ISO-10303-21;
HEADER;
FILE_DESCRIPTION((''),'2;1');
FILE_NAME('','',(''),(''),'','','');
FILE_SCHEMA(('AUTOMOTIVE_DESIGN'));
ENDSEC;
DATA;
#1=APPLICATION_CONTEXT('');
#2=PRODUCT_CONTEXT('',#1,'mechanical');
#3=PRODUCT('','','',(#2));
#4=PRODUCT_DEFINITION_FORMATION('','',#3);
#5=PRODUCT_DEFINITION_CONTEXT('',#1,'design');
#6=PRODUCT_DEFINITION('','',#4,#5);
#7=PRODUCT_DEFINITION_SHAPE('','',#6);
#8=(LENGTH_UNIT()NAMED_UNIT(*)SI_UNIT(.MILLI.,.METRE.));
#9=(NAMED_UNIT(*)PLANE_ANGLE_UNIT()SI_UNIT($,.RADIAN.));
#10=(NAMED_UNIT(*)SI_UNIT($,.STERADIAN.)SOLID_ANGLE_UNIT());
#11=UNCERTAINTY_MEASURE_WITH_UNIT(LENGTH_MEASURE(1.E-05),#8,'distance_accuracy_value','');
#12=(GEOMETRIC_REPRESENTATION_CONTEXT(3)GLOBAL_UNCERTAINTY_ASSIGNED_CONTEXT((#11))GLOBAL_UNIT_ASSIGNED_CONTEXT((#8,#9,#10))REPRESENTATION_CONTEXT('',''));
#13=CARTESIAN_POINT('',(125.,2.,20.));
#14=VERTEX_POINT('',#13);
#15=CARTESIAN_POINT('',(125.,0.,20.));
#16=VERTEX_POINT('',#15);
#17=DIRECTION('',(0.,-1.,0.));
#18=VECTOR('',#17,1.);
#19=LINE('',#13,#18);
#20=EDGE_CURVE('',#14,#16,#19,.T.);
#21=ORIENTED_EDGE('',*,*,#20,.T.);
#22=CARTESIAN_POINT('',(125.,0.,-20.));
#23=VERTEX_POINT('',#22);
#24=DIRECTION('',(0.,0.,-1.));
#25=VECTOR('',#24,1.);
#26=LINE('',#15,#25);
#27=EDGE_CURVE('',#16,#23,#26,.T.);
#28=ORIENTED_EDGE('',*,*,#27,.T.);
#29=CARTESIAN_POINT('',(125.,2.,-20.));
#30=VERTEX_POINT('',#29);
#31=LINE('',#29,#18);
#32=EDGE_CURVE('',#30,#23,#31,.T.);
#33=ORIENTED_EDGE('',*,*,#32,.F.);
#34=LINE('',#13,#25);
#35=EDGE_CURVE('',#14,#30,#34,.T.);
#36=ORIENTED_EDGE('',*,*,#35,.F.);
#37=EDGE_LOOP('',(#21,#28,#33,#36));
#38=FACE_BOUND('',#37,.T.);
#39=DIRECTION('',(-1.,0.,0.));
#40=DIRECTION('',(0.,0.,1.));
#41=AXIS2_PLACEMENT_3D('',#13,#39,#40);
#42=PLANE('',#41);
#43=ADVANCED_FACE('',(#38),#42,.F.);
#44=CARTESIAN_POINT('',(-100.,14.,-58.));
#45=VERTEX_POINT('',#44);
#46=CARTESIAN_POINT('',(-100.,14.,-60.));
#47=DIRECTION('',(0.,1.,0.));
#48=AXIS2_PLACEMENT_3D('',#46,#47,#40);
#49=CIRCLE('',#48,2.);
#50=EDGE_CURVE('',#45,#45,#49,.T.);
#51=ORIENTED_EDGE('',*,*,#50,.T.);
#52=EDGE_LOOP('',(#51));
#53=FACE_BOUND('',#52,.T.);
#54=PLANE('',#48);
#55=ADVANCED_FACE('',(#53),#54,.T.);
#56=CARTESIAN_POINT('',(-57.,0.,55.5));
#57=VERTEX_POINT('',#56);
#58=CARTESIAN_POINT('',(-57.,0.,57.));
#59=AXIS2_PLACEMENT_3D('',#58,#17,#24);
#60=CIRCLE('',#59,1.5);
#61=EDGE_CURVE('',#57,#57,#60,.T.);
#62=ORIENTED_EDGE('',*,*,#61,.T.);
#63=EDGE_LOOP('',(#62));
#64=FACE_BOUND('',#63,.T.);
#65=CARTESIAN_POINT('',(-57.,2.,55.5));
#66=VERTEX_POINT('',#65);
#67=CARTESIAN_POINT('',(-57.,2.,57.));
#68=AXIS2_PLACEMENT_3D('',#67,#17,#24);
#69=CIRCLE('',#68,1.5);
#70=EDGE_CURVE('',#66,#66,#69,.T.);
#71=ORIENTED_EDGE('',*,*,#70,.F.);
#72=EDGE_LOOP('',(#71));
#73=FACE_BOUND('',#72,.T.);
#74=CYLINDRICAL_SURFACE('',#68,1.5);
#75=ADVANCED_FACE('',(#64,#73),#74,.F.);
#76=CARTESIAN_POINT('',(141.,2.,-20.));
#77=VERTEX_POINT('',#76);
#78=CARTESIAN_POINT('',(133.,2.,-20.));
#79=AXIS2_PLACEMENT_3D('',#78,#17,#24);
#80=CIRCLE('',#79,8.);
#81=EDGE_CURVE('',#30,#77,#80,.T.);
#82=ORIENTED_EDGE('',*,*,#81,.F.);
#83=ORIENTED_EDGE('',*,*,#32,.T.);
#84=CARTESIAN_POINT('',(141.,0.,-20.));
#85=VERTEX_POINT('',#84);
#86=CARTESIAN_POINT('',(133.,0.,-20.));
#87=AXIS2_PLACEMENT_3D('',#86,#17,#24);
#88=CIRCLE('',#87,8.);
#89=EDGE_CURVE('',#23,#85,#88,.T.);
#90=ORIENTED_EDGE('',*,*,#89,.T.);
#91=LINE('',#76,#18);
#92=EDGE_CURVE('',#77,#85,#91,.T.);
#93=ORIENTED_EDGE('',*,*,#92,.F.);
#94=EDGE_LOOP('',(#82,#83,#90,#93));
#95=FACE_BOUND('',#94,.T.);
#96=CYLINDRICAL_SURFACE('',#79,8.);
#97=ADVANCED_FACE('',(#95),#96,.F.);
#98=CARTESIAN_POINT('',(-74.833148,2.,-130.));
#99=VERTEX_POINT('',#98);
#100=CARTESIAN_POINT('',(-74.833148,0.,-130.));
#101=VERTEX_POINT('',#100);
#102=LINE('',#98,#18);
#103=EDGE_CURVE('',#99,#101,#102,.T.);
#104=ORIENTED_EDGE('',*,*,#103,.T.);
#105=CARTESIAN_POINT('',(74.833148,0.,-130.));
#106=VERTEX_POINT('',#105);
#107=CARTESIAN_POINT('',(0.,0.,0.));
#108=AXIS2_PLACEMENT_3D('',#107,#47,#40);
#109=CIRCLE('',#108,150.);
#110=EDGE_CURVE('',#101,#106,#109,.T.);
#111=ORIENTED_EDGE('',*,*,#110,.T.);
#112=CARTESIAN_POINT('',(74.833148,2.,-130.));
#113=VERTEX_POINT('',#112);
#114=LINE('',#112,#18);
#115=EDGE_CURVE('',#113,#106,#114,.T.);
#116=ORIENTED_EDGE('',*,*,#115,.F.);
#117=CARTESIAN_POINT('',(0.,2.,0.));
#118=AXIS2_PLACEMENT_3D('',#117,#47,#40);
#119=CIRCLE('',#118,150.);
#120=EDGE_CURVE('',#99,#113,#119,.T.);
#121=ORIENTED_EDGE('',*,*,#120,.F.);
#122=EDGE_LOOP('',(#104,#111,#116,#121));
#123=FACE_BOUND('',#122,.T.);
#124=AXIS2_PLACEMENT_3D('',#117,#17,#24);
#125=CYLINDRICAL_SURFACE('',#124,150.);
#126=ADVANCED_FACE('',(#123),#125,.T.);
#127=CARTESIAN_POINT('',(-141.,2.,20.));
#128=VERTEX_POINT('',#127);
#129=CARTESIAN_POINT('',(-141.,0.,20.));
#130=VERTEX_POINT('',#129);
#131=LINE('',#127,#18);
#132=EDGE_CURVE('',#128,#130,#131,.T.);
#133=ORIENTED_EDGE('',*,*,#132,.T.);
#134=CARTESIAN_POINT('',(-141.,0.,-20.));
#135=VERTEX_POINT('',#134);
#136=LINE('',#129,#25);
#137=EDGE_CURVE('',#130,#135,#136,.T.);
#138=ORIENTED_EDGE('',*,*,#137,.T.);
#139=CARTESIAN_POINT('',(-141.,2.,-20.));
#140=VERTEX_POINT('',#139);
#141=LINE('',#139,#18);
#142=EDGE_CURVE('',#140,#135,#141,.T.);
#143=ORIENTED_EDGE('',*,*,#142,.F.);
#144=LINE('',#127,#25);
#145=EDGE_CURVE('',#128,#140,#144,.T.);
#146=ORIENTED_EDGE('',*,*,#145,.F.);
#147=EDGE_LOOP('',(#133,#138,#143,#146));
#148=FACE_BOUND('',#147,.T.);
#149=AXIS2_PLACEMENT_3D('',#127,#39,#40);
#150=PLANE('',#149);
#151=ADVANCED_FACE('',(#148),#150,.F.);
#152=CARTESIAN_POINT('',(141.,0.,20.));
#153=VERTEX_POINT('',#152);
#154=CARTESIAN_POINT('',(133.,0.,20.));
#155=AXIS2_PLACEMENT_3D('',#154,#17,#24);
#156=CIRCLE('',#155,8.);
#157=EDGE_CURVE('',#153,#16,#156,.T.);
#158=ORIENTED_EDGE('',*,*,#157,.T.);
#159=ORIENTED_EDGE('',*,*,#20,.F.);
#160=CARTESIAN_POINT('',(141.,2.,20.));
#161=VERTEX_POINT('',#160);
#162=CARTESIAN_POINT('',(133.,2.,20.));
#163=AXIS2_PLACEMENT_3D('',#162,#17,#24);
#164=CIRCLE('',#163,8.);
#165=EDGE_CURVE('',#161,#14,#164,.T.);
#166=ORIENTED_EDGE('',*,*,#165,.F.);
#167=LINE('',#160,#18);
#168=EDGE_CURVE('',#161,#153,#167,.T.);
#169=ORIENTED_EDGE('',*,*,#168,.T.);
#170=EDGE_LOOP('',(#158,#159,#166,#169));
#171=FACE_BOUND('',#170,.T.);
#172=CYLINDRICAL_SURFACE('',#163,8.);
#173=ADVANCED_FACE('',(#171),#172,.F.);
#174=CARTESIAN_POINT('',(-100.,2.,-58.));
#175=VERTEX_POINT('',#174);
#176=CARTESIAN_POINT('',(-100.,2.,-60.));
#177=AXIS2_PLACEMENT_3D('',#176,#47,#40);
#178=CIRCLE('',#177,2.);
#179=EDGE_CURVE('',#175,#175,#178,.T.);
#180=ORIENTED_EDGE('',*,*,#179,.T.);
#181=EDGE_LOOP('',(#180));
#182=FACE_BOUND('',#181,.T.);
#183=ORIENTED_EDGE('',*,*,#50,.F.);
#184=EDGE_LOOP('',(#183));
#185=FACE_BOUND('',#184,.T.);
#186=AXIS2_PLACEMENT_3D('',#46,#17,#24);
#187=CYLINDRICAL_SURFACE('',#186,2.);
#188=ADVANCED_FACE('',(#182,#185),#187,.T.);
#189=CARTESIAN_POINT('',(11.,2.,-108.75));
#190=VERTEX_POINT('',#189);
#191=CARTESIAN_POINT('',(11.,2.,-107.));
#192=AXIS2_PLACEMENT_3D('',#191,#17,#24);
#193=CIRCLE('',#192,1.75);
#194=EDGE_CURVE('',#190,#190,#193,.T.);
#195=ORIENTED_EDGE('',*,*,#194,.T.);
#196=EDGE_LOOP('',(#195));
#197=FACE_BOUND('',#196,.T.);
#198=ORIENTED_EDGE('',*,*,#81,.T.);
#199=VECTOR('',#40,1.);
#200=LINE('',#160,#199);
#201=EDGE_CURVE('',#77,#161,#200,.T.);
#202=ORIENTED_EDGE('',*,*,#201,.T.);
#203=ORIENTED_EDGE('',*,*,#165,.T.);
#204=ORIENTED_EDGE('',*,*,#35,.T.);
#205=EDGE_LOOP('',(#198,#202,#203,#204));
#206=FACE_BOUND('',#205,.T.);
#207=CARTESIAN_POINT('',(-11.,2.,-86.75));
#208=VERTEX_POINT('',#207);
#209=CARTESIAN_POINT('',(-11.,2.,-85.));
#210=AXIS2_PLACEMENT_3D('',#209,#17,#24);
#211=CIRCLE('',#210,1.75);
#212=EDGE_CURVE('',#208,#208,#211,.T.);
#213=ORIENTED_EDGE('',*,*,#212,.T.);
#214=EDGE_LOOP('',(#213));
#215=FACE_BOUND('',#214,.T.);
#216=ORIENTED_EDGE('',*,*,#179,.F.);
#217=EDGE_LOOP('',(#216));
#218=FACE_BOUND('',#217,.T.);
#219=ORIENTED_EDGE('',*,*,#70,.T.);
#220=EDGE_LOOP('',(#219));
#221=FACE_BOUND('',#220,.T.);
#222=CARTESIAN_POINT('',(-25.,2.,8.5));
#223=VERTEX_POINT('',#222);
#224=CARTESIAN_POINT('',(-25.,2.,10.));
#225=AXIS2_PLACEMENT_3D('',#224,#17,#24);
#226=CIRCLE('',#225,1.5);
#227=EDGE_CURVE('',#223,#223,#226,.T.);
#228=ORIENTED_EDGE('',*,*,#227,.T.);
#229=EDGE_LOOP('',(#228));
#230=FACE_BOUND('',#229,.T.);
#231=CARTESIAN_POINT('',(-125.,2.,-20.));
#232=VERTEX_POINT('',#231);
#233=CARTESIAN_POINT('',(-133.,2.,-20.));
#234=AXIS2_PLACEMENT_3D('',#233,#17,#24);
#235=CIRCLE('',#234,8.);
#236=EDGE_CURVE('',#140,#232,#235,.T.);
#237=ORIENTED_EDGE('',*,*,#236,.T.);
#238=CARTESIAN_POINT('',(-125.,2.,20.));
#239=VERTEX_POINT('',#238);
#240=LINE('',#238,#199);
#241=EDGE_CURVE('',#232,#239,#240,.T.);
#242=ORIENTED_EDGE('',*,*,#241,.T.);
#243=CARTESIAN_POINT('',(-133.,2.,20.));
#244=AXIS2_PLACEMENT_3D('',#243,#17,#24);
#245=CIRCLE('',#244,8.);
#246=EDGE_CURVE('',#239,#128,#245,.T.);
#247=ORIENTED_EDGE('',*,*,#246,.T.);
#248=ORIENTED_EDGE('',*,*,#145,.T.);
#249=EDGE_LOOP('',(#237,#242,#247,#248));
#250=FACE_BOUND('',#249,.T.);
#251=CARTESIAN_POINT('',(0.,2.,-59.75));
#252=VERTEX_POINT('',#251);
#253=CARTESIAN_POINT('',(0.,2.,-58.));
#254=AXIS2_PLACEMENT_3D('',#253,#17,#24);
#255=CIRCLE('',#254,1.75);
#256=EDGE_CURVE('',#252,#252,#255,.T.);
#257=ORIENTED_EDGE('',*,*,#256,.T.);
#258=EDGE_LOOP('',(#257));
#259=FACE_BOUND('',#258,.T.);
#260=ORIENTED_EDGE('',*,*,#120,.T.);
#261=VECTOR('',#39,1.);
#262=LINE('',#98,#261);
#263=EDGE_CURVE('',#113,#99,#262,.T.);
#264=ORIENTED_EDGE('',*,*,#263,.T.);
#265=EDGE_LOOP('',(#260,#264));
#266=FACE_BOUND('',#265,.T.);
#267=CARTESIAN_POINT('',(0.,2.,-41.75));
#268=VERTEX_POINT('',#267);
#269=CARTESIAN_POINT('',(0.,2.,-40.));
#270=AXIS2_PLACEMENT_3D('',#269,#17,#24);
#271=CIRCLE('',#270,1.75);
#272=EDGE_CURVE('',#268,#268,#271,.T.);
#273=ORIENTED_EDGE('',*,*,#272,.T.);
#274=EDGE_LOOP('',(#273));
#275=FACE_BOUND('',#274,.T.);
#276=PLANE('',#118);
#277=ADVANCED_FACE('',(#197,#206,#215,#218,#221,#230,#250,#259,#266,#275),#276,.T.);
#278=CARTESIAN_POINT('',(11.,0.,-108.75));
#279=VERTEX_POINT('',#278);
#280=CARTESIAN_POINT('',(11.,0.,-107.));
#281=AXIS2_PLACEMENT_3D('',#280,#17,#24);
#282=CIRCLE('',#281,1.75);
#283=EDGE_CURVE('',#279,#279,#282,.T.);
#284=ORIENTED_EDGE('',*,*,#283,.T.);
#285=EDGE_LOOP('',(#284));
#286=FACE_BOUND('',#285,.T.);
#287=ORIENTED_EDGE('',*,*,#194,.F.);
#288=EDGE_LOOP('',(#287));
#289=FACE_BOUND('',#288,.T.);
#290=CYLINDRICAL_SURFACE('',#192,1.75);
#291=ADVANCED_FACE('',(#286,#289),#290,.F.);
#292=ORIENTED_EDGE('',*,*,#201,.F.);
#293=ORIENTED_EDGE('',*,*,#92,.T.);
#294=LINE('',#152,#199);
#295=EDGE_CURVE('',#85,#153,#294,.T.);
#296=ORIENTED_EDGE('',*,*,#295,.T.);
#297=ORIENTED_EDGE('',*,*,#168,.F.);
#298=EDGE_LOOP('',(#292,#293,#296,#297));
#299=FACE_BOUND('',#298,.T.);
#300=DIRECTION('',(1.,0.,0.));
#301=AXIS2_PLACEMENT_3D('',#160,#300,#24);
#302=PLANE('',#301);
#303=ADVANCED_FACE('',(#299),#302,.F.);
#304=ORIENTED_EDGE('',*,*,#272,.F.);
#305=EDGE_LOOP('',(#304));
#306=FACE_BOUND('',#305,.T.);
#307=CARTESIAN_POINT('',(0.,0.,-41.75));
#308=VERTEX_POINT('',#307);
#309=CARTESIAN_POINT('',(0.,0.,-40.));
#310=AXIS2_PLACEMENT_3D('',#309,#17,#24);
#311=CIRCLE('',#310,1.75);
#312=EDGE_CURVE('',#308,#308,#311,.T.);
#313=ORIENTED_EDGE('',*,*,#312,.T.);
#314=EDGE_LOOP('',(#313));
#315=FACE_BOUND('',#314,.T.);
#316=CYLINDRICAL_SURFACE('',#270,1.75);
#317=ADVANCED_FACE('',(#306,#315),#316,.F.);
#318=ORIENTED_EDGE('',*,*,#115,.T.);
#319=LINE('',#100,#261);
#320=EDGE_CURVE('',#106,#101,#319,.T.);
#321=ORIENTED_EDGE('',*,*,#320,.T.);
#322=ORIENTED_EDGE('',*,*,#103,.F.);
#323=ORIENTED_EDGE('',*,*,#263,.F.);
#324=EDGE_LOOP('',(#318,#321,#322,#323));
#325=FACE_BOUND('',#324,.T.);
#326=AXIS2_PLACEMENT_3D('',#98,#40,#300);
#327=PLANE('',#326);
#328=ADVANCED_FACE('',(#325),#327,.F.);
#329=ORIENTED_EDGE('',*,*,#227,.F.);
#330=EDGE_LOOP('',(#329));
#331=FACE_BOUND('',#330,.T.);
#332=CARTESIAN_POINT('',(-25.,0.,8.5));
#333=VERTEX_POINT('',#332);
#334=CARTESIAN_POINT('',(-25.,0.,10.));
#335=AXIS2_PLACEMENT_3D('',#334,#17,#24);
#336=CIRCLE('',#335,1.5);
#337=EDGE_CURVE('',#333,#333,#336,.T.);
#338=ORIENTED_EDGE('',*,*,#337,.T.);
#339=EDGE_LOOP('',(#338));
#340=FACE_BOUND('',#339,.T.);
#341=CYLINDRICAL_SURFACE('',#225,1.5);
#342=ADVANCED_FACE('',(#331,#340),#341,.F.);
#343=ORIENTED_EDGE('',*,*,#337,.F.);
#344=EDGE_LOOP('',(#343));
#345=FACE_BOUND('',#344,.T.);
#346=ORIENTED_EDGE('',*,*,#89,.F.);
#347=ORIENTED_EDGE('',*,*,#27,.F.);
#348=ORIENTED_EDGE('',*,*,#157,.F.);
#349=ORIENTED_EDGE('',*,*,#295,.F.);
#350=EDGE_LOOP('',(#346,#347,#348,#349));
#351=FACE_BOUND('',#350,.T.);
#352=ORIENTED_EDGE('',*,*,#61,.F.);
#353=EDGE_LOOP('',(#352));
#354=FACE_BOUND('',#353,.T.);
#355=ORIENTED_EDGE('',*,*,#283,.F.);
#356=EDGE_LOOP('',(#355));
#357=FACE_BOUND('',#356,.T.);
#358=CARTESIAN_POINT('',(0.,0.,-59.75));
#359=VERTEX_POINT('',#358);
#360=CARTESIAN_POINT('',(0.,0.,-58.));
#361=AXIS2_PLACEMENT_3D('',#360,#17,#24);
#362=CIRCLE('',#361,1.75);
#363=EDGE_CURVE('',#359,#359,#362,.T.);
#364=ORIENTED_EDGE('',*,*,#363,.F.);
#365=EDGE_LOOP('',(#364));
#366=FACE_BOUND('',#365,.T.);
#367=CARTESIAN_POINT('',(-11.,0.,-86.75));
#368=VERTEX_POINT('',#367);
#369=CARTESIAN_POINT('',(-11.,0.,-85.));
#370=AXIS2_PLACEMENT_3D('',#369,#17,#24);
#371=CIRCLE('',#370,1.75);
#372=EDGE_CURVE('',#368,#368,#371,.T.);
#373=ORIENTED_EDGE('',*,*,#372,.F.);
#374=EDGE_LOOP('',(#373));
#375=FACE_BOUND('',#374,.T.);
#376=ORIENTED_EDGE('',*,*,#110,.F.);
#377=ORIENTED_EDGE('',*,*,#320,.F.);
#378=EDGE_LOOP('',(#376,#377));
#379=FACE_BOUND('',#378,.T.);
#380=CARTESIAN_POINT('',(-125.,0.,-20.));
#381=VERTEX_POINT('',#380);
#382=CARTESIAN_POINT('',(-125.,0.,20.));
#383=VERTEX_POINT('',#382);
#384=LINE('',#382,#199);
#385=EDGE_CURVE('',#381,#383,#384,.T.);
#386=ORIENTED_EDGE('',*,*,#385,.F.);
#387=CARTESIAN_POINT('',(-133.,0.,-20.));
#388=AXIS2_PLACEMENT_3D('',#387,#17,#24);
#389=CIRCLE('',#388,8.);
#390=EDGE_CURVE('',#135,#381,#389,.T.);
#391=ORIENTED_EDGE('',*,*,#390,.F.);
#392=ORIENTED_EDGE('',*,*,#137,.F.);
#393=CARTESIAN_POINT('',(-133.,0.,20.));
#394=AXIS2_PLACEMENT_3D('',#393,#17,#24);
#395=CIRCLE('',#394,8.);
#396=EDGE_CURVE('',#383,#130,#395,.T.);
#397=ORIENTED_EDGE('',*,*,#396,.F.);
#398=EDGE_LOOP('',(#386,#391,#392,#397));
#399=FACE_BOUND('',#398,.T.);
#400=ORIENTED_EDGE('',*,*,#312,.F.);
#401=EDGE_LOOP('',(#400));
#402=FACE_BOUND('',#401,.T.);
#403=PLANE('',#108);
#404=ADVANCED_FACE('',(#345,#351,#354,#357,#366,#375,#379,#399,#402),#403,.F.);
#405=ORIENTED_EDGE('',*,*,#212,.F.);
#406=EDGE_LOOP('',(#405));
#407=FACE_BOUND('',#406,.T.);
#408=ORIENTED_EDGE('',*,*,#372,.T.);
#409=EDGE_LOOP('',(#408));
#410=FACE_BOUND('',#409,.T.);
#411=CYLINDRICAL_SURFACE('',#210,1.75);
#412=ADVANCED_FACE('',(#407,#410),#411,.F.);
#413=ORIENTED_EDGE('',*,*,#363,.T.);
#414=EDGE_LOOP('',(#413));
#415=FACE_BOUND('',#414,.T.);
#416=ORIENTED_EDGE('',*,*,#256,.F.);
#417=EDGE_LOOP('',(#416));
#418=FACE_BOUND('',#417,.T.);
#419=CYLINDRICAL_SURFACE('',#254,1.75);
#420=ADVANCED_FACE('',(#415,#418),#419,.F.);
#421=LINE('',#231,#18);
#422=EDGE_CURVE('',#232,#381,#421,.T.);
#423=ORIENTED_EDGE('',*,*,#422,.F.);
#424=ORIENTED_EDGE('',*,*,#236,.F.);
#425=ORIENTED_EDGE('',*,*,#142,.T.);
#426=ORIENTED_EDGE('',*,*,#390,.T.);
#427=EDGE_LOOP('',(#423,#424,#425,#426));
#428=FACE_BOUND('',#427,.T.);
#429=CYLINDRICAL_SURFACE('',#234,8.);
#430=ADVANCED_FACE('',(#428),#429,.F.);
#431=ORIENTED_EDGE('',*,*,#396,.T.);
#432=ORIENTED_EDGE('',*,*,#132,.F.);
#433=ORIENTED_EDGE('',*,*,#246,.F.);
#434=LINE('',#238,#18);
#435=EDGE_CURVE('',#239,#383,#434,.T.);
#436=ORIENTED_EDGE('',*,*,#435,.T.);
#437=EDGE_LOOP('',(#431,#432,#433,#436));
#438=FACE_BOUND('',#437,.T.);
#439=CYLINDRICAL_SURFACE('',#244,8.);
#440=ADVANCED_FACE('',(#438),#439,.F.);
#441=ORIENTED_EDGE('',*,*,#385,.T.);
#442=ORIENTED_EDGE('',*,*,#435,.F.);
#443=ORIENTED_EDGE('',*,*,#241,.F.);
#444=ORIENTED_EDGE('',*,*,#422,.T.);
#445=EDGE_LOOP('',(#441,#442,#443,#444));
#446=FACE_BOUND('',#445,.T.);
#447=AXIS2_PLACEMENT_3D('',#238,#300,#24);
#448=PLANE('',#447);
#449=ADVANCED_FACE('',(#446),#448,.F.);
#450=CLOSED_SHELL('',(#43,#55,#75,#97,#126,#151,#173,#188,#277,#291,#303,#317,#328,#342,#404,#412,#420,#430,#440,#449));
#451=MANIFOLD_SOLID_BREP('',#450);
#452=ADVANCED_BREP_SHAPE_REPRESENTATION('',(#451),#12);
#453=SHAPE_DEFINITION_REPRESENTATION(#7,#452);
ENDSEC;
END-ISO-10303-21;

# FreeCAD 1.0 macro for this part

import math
import FreeCAD as App
import Part
import Sketcher

V = App.Vector

doc = App.newDocument("Part")
body = doc.addObject("PartDesign::Body", "Body")

sketch1 = body.newObject("Sketcher::SketchObject", "Sketch")
sketch1.AttachmentSupport = (doc.getObject("XZ_Plane"), [""])
sketch1.MapMode = "FlatFace"
sketch1.addGeometry([
    Part.LineSegment(V(75, -130, 0), V(-75, -130, 0)),
    Part.ArcOfCircle(Part.Circle(V(0, 0, 0), V(0, 0, 1), 150), math.radians(-60), math.radians(240)),
], False)
sketch1.addConstraint([
    Sketcher.Constraint("Coincident", 0, 1, 1, 1),
    Sketcher.Constraint("Coincident", 1, 2, 0, 2),
    Sketcher.Constraint("Horizontal", 0),
    Sketcher.Constraint("Coincident", 1, 3, -1, 1),
    Sketcher.Constraint("Radius", 1, 150.0),
    Sketcher.Constraint("DistanceY", 0, 1, -1, 1, 130.0),
])
pad1 = body.newObject("PartDesign::Pad", "Pad")
pad1.Profile = sketch1
pad1.Length = 2
pad1.Reversed = True

sketch2 = body.newObject("Sketcher::SketchObject", "Sketch001")
sketch2.AttachmentSupport = (doc.getObject("XZ_Plane"), [""])
sketch2.MapMode = "FlatFace"
sketch2.addGeometry([
    Part.Circle(V(-25, 10, 0), V(0, 0, 1), 1.5),
    Part.Circle(V(-57, 57, 0), V(0, 0, 1), 1.5),
    Part.Circle(V(0, -40, 0), V(0, 0, 1), 1.8),
    Part.Circle(V(0, -58, 0), V(0, 0, 1), 1.8),
    Part.Circle(V(11, -107, 0), V(0, 0, 1), 1.8),
    Part.Circle(V(-11, -85, 0), V(0, 0, 1), 1.8),
    Part.LineSegment(V(-125, -20, 0), V(-125, 20, 0)),
    Part.ArcOfCircle(Part.Circle(V(-133, 20, 0), V(0, 0, 1), 8), math.radians(0), math.radians(180)),
    Part.LineSegment(V(-141, 20, 0), V(-141, -20, 0)),
    Part.ArcOfCircle(Part.Circle(V(-133, -20, 0), V(0, 0, 1), 8), math.radians(180), math.radians(360)),
    Part.LineSegment(V(141, -20, 0), V(141, 20, 0)),
    Part.ArcOfCircle(Part.Circle(V(133, 20, 0), V(0, 0, 1), 8), math.radians(0), math.radians(180)),
    Part.LineSegment(V(125, 20, 0), V(125, -20, 0)),
    Part.ArcOfCircle(Part.Circle(V(133, -20, 0), V(0, 0, 1), 8), math.radians(180), math.radians(360)),
], False)
sketch2.addConstraint([
    Sketcher.Constraint("Tangent", 6, 2, 7, 1),
    Sketcher.Constraint("Tangent", 7, 2, 8, 1),
    Sketcher.Constraint("Tangent", 8, 2, 9, 1),
    Sketcher.Constraint("Tangent", 9, 2, 6, 1),
    Sketcher.Constraint("Tangent", 10, 2, 11, 1),
    Sketcher.Constraint("Tangent", 11, 2, 12, 1),
    Sketcher.Constraint("Tangent", 12, 2, 13, 1),
    Sketcher.Constraint("Tangent", 13, 2, 10, 1),
    Sketcher.Constraint("Vertical", 6),
    Sketcher.Constraint("Vertical", 8),
    Sketcher.Constraint("Vertical", 10),
    Sketcher.Constraint("Vertical", 12),
    Sketcher.Constraint("Equal", 0, 1),
    Sketcher.Constraint("Equal", 2, 3),
    Sketcher.Constraint("Equal", 3, 4),
    Sketcher.Constraint("Equal", 4, 5),
    Sketcher.Constraint("Equal", 9, 11),
    Sketcher.Constraint("Symmetric", 9, 3, 11, 3, -1, 1),
    Sketcher.Constraint("PointOnObject", 2, 3, -2),
    Sketcher.Constraint("PointOnObject", 3, 3, -2),
    Sketcher.Constraint("Horizontal", 7, 3, 11, 3),
    Sketcher.Constraint("Horizontal", 9, 3, 13, 3),
    Sketcher.Constraint("Diameter", 0, 3.0),
    Sketcher.Constraint("Radius", 7, 8.0),
    Sketcher.Constraint("Diameter", 2, 3.5),
    Sketcher.Constraint("DistanceY", 6, 1, 6, 2, 40.0),
    Sketcher.Constraint("DistanceX", 0, 3, -1, 1, 25.0),
    Sketcher.Constraint("DistanceY", -1, 1, 0, 3, 10.0),
    Sketcher.Constraint("DistanceX", 1, 3, -1, 1, 57.0),
    Sketcher.Constraint("DistanceY", -1, 1, 1, 3, 57.0),
    Sketcher.Constraint("DistanceY", 2, 3, -1, 1, 40.0),
    Sketcher.Constraint("DistanceY", 3, 3, -1, 1, 58.0),
    Sketcher.Constraint("DistanceX", -1, 1, 4, 3, 11.0),
    Sketcher.Constraint("DistanceY", 4, 3, -1, 1, 107.0),
    Sketcher.Constraint("DistanceX", 5, 3, -1, 1, 11.0),
    Sketcher.Constraint("DistanceY", 5, 3, -1, 1, 85.0),
    Sketcher.Constraint("DistanceX", 7, 3, -1, 1, 133.0),
])
pocket1 = body.newObject("PartDesign::Pocket", "Pocket")
pocket1.Profile = sketch2
pocket1.Type = "ThroughAll"

sketch3 = body.newObject("Sketcher::SketchObject", "Sketch002")
sketch3.AttachmentSupport = (doc.getObject("XZ_Plane"), [""])
sketch3.MapMode = "FlatFace"
sketch3.AttachmentOffset = App.Placement(V(0, 0, -2), App.Rotation())
sketch3.addGeometry(Part.Circle(V(-100, -60, 0), V(0, 0, 1), 2), False)
sketch3.addConstraint([
    Sketcher.Constraint("Diameter", 0, 4.0),
    Sketcher.Constraint("DistanceX", 0, 3, -1, 1, 100.0),
    Sketcher.Constraint("DistanceY", 0, 3, -1, 1, 60.0),
])
pad2 = body.newObject("PartDesign::Pad", "Pad001")
pad2.Profile = sketch3
pad2.Length = 12
pad2.Reversed = True

doc.recompute()
